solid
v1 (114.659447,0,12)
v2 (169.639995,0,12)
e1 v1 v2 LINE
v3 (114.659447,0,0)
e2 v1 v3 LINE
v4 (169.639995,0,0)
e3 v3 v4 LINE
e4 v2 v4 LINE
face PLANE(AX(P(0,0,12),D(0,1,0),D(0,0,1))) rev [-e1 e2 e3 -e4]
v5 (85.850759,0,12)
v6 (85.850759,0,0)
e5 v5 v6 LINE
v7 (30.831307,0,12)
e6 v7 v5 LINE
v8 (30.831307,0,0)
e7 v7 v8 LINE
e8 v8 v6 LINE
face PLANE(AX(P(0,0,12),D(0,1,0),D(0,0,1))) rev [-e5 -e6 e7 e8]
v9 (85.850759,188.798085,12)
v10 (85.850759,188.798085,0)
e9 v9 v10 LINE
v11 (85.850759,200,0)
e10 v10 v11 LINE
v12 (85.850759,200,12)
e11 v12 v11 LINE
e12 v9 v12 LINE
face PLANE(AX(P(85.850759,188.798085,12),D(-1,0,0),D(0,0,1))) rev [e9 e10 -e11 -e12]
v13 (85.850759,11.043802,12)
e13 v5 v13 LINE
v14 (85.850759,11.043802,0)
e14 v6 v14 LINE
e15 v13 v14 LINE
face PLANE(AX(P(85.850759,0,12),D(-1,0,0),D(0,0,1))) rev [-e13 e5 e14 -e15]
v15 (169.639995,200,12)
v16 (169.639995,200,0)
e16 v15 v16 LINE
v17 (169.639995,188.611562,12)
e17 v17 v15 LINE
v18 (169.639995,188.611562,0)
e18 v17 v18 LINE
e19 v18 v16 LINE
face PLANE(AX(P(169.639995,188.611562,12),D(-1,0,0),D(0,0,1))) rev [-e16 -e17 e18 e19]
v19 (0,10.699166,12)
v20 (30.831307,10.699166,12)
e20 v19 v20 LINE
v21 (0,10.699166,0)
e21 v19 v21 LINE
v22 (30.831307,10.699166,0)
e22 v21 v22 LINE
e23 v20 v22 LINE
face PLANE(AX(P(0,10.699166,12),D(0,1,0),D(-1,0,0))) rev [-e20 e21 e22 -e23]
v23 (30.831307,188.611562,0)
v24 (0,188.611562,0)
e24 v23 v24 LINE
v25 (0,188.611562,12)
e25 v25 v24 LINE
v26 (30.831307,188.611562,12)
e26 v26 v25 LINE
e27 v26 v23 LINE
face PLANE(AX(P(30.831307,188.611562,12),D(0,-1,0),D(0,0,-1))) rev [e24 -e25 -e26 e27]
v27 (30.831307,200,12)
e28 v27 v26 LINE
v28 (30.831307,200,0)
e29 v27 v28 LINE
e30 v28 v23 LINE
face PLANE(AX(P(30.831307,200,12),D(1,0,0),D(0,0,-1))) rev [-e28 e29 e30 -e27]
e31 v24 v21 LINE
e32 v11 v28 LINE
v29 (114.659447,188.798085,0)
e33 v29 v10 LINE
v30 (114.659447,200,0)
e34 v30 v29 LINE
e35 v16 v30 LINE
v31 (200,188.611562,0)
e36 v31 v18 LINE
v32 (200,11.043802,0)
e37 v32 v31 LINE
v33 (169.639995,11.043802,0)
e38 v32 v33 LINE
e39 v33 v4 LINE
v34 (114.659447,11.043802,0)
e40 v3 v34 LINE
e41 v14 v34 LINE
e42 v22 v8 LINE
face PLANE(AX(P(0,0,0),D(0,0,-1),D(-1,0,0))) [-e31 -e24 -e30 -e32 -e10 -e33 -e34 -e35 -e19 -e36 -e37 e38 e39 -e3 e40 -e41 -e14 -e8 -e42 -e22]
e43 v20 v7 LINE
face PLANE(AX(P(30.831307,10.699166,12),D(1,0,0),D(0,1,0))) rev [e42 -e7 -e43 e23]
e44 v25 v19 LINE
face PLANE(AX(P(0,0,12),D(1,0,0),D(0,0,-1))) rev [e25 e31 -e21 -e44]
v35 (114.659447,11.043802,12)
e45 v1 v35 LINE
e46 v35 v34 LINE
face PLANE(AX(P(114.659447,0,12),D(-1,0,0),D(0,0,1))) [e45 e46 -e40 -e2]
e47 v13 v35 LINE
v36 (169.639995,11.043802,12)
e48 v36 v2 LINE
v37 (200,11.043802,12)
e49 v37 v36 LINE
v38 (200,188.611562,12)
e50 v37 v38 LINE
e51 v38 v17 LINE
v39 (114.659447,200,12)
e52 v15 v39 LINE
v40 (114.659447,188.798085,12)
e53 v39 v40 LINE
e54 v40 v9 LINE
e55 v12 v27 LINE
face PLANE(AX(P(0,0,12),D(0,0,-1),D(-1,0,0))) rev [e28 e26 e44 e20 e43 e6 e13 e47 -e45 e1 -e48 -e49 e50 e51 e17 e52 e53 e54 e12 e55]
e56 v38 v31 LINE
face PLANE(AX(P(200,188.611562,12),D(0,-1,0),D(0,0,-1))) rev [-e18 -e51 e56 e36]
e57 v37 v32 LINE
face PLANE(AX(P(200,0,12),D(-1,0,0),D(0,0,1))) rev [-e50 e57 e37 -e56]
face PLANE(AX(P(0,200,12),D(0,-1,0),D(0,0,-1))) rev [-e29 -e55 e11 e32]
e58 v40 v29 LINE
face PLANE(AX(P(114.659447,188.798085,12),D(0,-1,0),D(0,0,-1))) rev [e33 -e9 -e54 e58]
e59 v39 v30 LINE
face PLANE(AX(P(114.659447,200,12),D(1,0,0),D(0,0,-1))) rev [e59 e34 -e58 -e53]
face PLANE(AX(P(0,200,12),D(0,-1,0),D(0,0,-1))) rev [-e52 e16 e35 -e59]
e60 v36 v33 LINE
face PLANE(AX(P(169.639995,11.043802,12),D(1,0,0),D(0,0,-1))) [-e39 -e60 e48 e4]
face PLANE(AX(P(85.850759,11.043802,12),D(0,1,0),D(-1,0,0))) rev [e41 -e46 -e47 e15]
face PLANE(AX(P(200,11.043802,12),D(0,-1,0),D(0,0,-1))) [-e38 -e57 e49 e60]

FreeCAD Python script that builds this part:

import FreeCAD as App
import Part
import Sketcher
Q = App.Units.Quantity

doc = App.newDocument("Part")
params = doc.addObject("Spreadsheet::Sheet", "Params")
for row, (alias, value) in enumerate([
    ("sketch1_width", "200 mm"),
    ("pad1_length", "12 mm"),
], start=1):
    params.set(f"A{row}", alias)
    params.set(f"B{row}", "=" + value)
    params.setAlias(f"B{row}", alias)

body = doc.addObject("PartDesign::Body", "Body")

sketch1 = body.newObject("Sketcher::SketchObject", "Sketch")
sketch1.AttachmentSupport = (doc.getObject("XY_Plane"), [""])
sketch1.MapMode = "FlatFace"
sketch1.addGeometry([
    Part.LineSegment(App.Vector(0, 200, 0), App.Vector(0, 0, 0)),
    Part.LineSegment(App.Vector(0, 0, 0), App.Vector(200, 0, 0)),
    Part.LineSegment(App.Vector(200, 0, 0), App.Vector(200, 200, 0)),
    Part.LineSegment(App.Vector(200, 200, 0), App.Vector(0, 200, 0)),
], False)
sketch1.addConstraint([
    Sketcher.Constraint("Coincident", 0, 2, 1, 1),
    Sketcher.Constraint("Coincident", 1, 2, 2, 1),
    Sketcher.Constraint("Coincident", 2, 2, 3, 1),
    Sketcher.Constraint("Coincident", 3, 2, 0, 1),
    Sketcher.Constraint("Vertical", 0),
    Sketcher.Constraint("Horizontal", 1),
    Sketcher.Constraint("Vertical", 2),
    Sketcher.Constraint("Horizontal", 3),
    Sketcher.Constraint("Coincident", 0, 2, -1, 1),
    Sketcher.Constraint("Equal", 3, 0),
    Sketcher.Constraint("DistanceX", 1, 1, 1, 2, Q("200 mm")),
])
sketch1.setExpression("Constraints[10]", "Params.sketch1_width")
pad1 = body.newObject("PartDesign::Pad", "Pad")
pad1.Profile = sketch1
pad1.setExpression("Length", "Params.pad1_length")

sketch2 = body.newObject("Sketcher::SketchObject", "Sketch001")
sketch2.AttachmentSupport = (doc.getObject("XY_Plane"), [""])
sketch2.MapMode = "FlatFace"
sketch2.addGeometry([
    Part.LineSegment(App.Vector(200, 200, 0), App.Vector(200, 189, 0)),
    Part.LineSegment(App.Vector(200, 189, 0), App.Vector(170, 189, 0)),
    Part.LineSegment(App.Vector(170, 189, 0), App.Vector(170, 200, 0)),
    Part.LineSegment(App.Vector(170, 200, 0), App.Vector(200, 200, 0)),
    Part.LineSegment(App.Vector(31, 200, 0), App.Vector(31, 189, 0)),
    Part.LineSegment(App.Vector(31, 189, 0), App.Vector(0, 189, 0)),
    Part.LineSegment(App.Vector(0, 189, 0), App.Vector(0, 200, 0)),
    Part.LineSegment(App.Vector(0, 200, 0), App.Vector(31, 200, 0)),
    Part.LineSegment(App.Vector(200, 11, 0), App.Vector(200, 0, 0)),
    Part.LineSegment(App.Vector(200, 0, 0), App.Vector(170, 0, 0)),
    Part.LineSegment(App.Vector(170, 0, 0), App.Vector(170, 11, 0)),
    Part.LineSegment(App.Vector(170, 11, 0), App.Vector(200, 11, 0)),
    Part.LineSegment(App.Vector(115, 200, 0), App.Vector(115, 189, 0)),
    Part.LineSegment(App.Vector(115, 189, 0), App.Vector(86, 189, 0)),
    Part.LineSegment(App.Vector(86, 189, 0), App.Vector(86, 200, 0)),
    Part.LineSegment(App.Vector(86, 200, 0), App.Vector(115, 200, 0)),
    Part.LineSegment(App.Vector(31, 11, 0), App.Vector(31, 0, 0)),
    Part.LineSegment(App.Vector(31, 0, 0), App.Vector(0, 0, 0)),
    Part.LineSegment(App.Vector(0, 0, 0), App.Vector(0, 11, 0)),
    Part.LineSegment(App.Vector(0, 11, 0), App.Vector(31, 11, 0)),
    Part.LineSegment(App.Vector(115, 11, 0), App.Vector(115, 0, 0)),
    Part.LineSegment(App.Vector(115, 0, 0), App.Vector(86, 0, 0)),
    Part.LineSegment(App.Vector(86, 0, 0), App.Vector(86, 11, 0)),
    Part.LineSegment(App.Vector(86, 11, 0), App.Vector(115, 11, 0)),
], False)
sketch2.addConstraint([
    Sketcher.Constraint("Coincident", 0, 2, 1, 1),
    Sketcher.Constraint("Coincident", 1, 2, 2, 1),
    Sketcher.Constraint("Coincident", 2, 2, 3, 1),
    Sketcher.Constraint("Coincident", 3, 2, 0, 1),
    Sketcher.Constraint("Coincident", 4, 2, 5, 1),
    Sketcher.Constraint("Coincident", 5, 2, 6, 1),
    Sketcher.Constraint("Coincident", 6, 2, 7, 1),
    Sketcher.Constraint("Coincident", 7, 2, 4, 1),
    Sketcher.Constraint("Coincident", 8, 2, 9, 1),
    Sketcher.Constraint("Coincident", 9, 2, 10, 1),
    Sketcher.Constraint("Coincident", 10, 2, 11, 1),
    Sketcher.Constraint("Coincident", 11, 2, 8, 1),
    Sketcher.Constraint("Coincident", 12, 2, 13, 1),
    Sketcher.Constraint("Coincident", 13, 2, 14, 1),
    Sketcher.Constraint("Coincident", 14, 2, 15, 1),
    Sketcher.Constraint("Coincident", 15, 2, 12, 1),
    Sketcher.Constraint("Coincident", 16, 2, 17, 1),
    Sketcher.Constraint("Coincident", 17, 2, 18, 1),
    Sketcher.Constraint("Coincident", 18, 2, 19, 1),
    Sketcher.Constraint("Coincident", 19, 2, 16, 1),
    Sketcher.Constraint("Coincident", 20, 2, 21, 1),
    Sketcher.Constraint("Coincident", 21, 2, 22, 1),
    Sketcher.Constraint("Coincident", 22, 2, 23, 1),
    Sketcher.Constraint("Coincident", 23, 2, 20, 1),
    Sketcher.Constraint("Vertical", 0),
    Sketcher.Constraint("Horizontal", 1),
    Sketcher.Constraint("Vertical", 2),
    Sketcher.Constraint("Horizontal", 3),
    Sketcher.Constraint("Vertical", 4),
    Sketcher.Constraint("Horizontal", 5),
    Sketcher.Constraint("Vertical", 6),
    Sketcher.Constraint("Horizontal", 7),
    Sketcher.Constraint("Vertical", 8),
    Sketcher.Constraint("Horizontal", 9),
    Sketcher.Constraint("Vertical", 10),
    Sketcher.Constraint("Horizontal", 11),
    Sketcher.Constraint("Vertical", 12),
    Sketcher.Constraint("Horizontal", 13),
    Sketcher.Constraint("Vertical", 14),
    Sketcher.Constraint("Horizontal", 15),
    Sketcher.Constraint("Vertical", 16),
    Sketcher.Constraint("Horizontal", 17),
    Sketcher.Constraint("Vertical", 18),
    Sketcher.Constraint("Horizontal", 19),
    Sketcher.Constraint("Vertical", 20),
    Sketcher.Constraint("Horizontal", 21),
    Sketcher.Constraint("Vertical", 22),
    Sketcher.Constraint("Horizontal", 23),
    Sketcher.Constraint("Coincident", 17, 2, -1, 1),
    Sketcher.Constraint("PointOnObject", 5, 2, -2),
    Sketcher.Constraint("PointOnObject", 8, 2, -1),
    Sketcher.Constraint("PointOnObject", 20, 2, -1),
    Sketcher.Constraint("Horizontal", 1, 2, 4, 2),
    Sketcher.Constraint("Horizontal", 3, 2, 6, 2),
    Sketcher.Constraint("Horizontal", 7, 2, 14, 2),
    Sketcher.Constraint("Horizontal", 11, 2, 22, 2),
    Sketcher.Constraint("Vertical", 3, 2, 8, 2),
    Sketcher.Constraint("Vertical", 2, 2, 9, 2),
    Sketcher.Constraint("Vertical", 7, 2, 16, 2),
    Sketcher.Constraint("Vertical", 15, 2, 20, 2),
    Sketcher.Constraint("Vertical", 14, 2, 21, 2),
    Sketcher.Constraint("DistanceX", -1, 1, 0, 2, Q("200 mm")),
    Sketcher.Constraint("DistanceY", -1, 1, 2, 2, Q("200 mm")),
    Sketcher.Constraint("DistanceY", 8, 2, 8, 1, Q("11.043802 mm")),
    Sketcher.Constraint("DistanceX", 13, 2, 13, 1, Q("28.808688 mm")),
    Sketcher.Constraint("DistanceX", 1, 2, 1, 1, Q("30.360005 mm")),
    Sketcher.Constraint("DistanceX", 5, 2, 5, 1, Q("30.831307 mm")),
    Sketcher.Constraint("DistanceY", 0, 2, 0, 1, Q("11.388438 mm")),
    Sketcher.Constraint("DistanceY", 12, 2, 12, 1, Q("11.201915 mm")),
    Sketcher.Constraint("DistanceY", 16, 2, 16, 1, Q("10.699166 mm")),
    Sketcher.Constraint("DistanceX", -1, 1, 13, 2, Q("85.850759 mm")),
])
pocket1 = body.newObject("PartDesign::Pocket", "Pocket")
pocket1.Profile = sketch2
pocket1.Type = "ThroughAll"
pocket1.Reversed = True

doc.recompute()
